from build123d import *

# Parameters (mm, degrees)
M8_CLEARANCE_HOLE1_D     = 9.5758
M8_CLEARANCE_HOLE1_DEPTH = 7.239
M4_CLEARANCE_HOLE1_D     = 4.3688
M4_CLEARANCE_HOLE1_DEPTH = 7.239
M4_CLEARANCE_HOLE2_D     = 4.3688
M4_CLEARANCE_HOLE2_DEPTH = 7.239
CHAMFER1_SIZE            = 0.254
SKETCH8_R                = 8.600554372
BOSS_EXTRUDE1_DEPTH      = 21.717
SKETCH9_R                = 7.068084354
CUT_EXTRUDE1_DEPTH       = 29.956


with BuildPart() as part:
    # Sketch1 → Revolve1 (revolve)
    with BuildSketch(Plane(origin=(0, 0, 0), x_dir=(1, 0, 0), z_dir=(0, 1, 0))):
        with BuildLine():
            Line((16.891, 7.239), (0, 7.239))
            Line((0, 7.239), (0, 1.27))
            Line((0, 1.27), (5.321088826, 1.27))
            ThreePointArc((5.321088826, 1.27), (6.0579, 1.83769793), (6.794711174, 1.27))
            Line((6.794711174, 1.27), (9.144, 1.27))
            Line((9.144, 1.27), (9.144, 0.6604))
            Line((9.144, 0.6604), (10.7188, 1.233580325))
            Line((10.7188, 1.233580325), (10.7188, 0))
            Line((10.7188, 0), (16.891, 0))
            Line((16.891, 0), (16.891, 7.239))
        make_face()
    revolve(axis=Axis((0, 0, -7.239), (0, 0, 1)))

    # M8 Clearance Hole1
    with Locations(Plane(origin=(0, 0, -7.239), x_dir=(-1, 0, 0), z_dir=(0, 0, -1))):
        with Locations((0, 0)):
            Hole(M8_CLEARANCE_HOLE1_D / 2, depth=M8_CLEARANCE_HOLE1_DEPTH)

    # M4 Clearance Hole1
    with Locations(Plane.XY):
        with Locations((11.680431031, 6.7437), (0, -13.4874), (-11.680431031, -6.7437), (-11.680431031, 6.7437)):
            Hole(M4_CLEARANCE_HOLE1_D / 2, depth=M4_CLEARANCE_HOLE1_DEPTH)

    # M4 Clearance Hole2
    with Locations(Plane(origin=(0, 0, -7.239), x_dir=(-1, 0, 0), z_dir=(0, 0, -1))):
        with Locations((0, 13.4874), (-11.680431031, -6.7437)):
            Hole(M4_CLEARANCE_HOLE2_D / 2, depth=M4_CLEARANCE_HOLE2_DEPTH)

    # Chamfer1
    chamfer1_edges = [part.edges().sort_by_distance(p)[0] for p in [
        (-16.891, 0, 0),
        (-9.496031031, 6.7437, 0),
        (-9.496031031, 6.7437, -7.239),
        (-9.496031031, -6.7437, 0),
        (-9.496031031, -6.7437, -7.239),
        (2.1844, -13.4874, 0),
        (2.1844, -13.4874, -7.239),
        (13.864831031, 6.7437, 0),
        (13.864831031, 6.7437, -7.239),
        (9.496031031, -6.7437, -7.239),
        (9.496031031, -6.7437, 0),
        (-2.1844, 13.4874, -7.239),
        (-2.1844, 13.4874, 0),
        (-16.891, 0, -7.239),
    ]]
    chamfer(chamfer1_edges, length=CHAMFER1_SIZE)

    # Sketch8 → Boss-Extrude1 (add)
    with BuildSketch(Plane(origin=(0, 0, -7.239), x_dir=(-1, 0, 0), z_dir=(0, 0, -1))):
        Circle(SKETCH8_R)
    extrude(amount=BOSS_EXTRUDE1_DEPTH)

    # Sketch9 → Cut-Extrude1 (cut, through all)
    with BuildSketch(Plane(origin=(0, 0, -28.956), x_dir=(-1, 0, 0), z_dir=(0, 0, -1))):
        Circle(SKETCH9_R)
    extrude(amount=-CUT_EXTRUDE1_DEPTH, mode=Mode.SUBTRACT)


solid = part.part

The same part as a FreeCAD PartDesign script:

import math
import FreeCAD as App
import Part
import Sketcher
Q = App.Units.Quantity


def edges_at(feature, points):
    """Names of the edges that pass closest to the given points."""
    edges = feature.Shape.Edges
    near = lambda p: min(range(len(edges)), key=lambda i: edges[i].distToShape(Part.Vertex(*p))[0])
    return sorted({f"Edge{near(p) + 1}" for p in points})

doc = App.newDocument("Part")
params = doc.addObject("Spreadsheet::Sheet", "Params")
for row, (alias, value) in enumerate([
    ("sketch1_radius", "0.03 in"),
    ("sketch1_width", "0.665 in"),
    ("sketch1_width2", "0.243 in"),
    ("sketch1_height", "0.235 in"),
    ("sketch1_height2", "0.024 in"),
    ("revolution_angle", "360 deg"),
    ("sketch2_diameter", "0.377 in"),
    ("hole_diameter", "0.377 in"),
    ("hole_depth", "0.285 in"),
    ("sketch3_diameter", "0.172 in"),
    ("hole2_diameter", "0.172 in"),
    ("hole2_depth", "0.285 in"),
    ("sketch4_diameter", "0.172 in"),
    ("hole3_diameter", "0.172 in"),
    ("hole3_depth", "0.285 in"),
    ("chamfer_size", "0.01 in"),
    ("pad1_length", "0.855 in"),
], start=1):
    params.set(f"A{row}", alias)
    params.set(f"B{row}", "=" + value)
    params.setAlias(f"B{row}", alias)

body = doc.addObject("PartDesign::Body", "Body")

sketch1 = body.newObject("Sketcher::SketchObject", "Sketch")
sketch1.AttachmentSupport = (doc.getObject("XZ_Plane"), [""])
sketch1.MapMode = "FlatFace"
sketch1.addGeometry([
    Part.LineSegment(App.Vector(16.9, -7.2, 0), App.Vector(0, -7.2, 0)),
    Part.LineSegment(App.Vector(0, -7.2, 0), App.Vector(0, -1.3, 0)),
    Part.LineSegment(App.Vector(0, -1.3, 0), App.Vector(5.3, -1.3, 0)),
    Part.ArcOfCircle(Part.Circle(App.Vector(6.1, -1.1, 0), App.Vector(0, 0, 1), 0.8), math.radians(-165), math.radians(-15)),
    Part.LineSegment(App.Vector(6.8, -1.3, 0), App.Vector(9.1, -1.3, 0)),
    Part.LineSegment(App.Vector(9.1, -1.3, 0), App.Vector(9.1, -0.7, 0)),
    Part.LineSegment(App.Vector(9.1, -0.7, 0), App.Vector(10.7, -1.2, 0)),
    Part.LineSegment(App.Vector(10.7, -1.2, 0), App.Vector(10.7, 0, 0)),
    Part.LineSegment(App.Vector(10.7, 0, 0), App.Vector(16.9, 0, 0)),
    Part.LineSegment(App.Vector(16.9, 0, 0), App.Vector(16.9, -7.2, 0)),
], False)
sketch1.addConstraint([
    Sketcher.Constraint("Coincident", 0, 2, 1, 1),
    Sketcher.Constraint("Coincident", 1, 2, 2, 1),
    Sketcher.Constraint("Coincident", 2, 2, 3, 1),
    Sketcher.Constraint("Coincident", 3, 2, 4, 1),
    Sketcher.Constraint("Coincident", 4, 2, 5, 1),
    Sketcher.Constraint("Coincident", 5, 2, 6, 1),
    Sketcher.Constraint("Coincident", 6, 2, 7, 1),
    Sketcher.Constraint("Coincident", 7, 2, 8, 1),
    Sketcher.Constraint("Coincident", 8, 2, 9, 1),
    Sketcher.Constraint("Coincident", 9, 2, 0, 1),
    Sketcher.Constraint("Horizontal", 0),
    Sketcher.Constraint("Vertical", 1),
    Sketcher.Constraint("Horizontal", 2),
    Sketcher.Constraint("Horizontal", 4),
    Sketcher.Constraint("Vertical", 5),
    Sketcher.Constraint("Vertical", 7),
    Sketcher.Constraint("Horizontal", 8),
    Sketcher.Constraint("Vertical", 9),
    Sketcher.Constraint("PointOnObject", 0, 2, -2),
    Sketcher.Constraint("PointOnObject", 7, 2, -1),
    Sketcher.Constraint("Horizontal", 2, 2, 3, 2),
    Sketcher.Constraint("Radius", 3, Q("0.03 in")),
    Sketcher.Constraint("Angle", 6, Q("-20 deg")),
    Sketcher.Constraint("DistanceX", 0, 2, 0, 1, Q("0.665 in")),
    Sketcher.Constraint("DistanceX", 8, 1, 8, 2, Q("0.243 in")),
    Sketcher.Constraint("DistanceY", 1, 1, 1, 2, Q("0.235 in")),
    Sketcher.Constraint("DistanceY", 5, 1, 5, 2, Q("0.024 in")),
    Sketcher.Constraint("DistanceY", 9, 2, 9, 1, Q("0.285 in")),
    Sketcher.Constraint("DistanceX", -1, 1, 4, 2, Q("0.36 in")),
    Sketcher.Constraint("DistanceX", -1, 1, 3, 3, Q("0.2385 in")),
    Sketcher.Constraint("DistanceX", 2, 1, 2, 2, 5.321089),
])
sketch1.setExpression("Constraints[21]", "Params.sketch1_radius")
sketch1.setExpression("Constraints[23]", "Params.sketch1_width")
sketch1.setExpression("Constraints[24]", "Params.sketch1_width2")
sketch1.setExpression("Constraints[25]", "Params.sketch1_height")
sketch1.setExpression("Constraints[26]", "Params.sketch1_height2")
revolution = body.newObject("PartDesign::Revolution", "Revolution")
revolution.Profile = sketch1
revolution.ReferenceAxis = (sketch1, ["V_Axis"])
revolution.setExpression("Angle", "Params.revolution_angle")

sketch2 = body.newObject("Sketcher::SketchObject", "Sketch001")
sketch2.AttachmentSupport = (doc.getObject("XY_Plane"), [""])
sketch2.MapMode = "FlatFace"
sketch2.AttachmentOffset = App.Placement(App.Vector(0, 0, -0.285 * 25.4), App.Rotation())
sketch2.addGeometry(Part.Circle(App.Vector(0, 0, 0), App.Vector(0, 0, 1), 4.8), False)
sketch2.addConstraint([
    Sketcher.Constraint("Coincident", 0, 3, -1, 1),
    Sketcher.Constraint("Diameter", 0, Q("0.377 in")),
])
sketch2.setExpression("Constraints[1]", "Params.sketch2_diameter")
doc.recompute()
hole = body.newObject("PartDesign::Hole", "Hole")
hole.Profile = sketch2
hole.ThreadType = "None"
hole.setExpression("Diameter", "Params.hole_diameter")
hole.DepthType = "Dimension"
hole.setExpression("Depth", "Params.hole_depth")
hole.DrillPoint = "Flat"
hole.Reversed = True

sketch3 = body.newObject("Sketcher::SketchObject", "Sketch002")
sketch3.AttachmentSupport = (doc.getObject("XY_Plane"), [""])
sketch3.MapMode = "FlatFace"
sketch3.addGeometry([
    Part.Circle(App.Vector(11.7, 6.7, 0), App.Vector(0, 0, 1), 2.2),
    Part.Circle(App.Vector(0, -13.5, 0), App.Vector(0, 0, 1), 2.2),
    Part.Circle(App.Vector(-11.7, -6.7, 0), App.Vector(0, 0, 1), 2.2),
    Part.Circle(App.Vector(-11.7, 6.7, 0), App.Vector(0, 0, 1), 2.2),
], False)
sketch3.addConstraint([
    Sketcher.Constraint("Equal", 0, 1),
    Sketcher.Constraint("Equal", 1, 2),
    Sketcher.Constraint("Equal", 2, 3),
    Sketcher.Constraint("Symmetric", 0, 3, 2, 3, -1, 1),
    Sketcher.Constraint("Symmetric", 0, 3, 3, 3, -2),
    Sketcher.Constraint("PointOnObject", 1, 3, -2),
    Sketcher.Constraint("Diameter", 0, Q("0.172 in")),
    Sketcher.Constraint("DistanceY", 1, 3, -1, 1, Q("0.531 in")),
    Sketcher.Constraint("DistanceY", 2, 3, 0, 3, Q("0.531 in")),
    Sketcher.Constraint("DistanceX", -1, 1, 0, 3, 11.680431),
])
sketch3.setExpression("Constraints[6]", "Params.sketch3_diameter")
doc.recompute()
hole2 = body.newObject("PartDesign::Hole", "Hole001")
hole2.Profile = sketch3
hole2.ThreadType = "None"
hole2.setExpression("Diameter", "Params.hole2_diameter")
hole2.DepthType = "Dimension"
hole2.setExpression("Depth", "Params.hole2_depth")
hole2.DrillPoint = "Flat"

sketch4 = body.newObject("Sketcher::SketchObject", "Sketch003")
sketch4.AttachmentSupport = (doc.getObject("XY_Plane"), [""])
sketch4.MapMode = "FlatFace"
sketch4.AttachmentOffset = App.Placement(App.Vector(0, 0, -0.285 * 25.4), App.Rotation())
sketch4.addGeometry([
    Part.Circle(App.Vector(0, 13.5, 0), App.Vector(0, 0, 1), 2.2),
    Part.Circle(App.Vector(11.7, -6.7, 0), App.Vector(0, 0, 1), 2.2),
], False)
sketch4.addConstraint([
    Sketcher.Constraint("Equal", 0, 1),
    Sketcher.Constraint("PointOnObject", 0, 3, -2),
    Sketcher.Constraint("Diameter", 0, Q("0.172 in")),
    Sketcher.Constraint("DistanceY", -1, 1, 0, 3, Q("0.531 in")),
    Sketcher.Constraint("DistanceY", 1, 3, -1, 1, Q("0.2655 in")),
    Sketcher.Constraint("DistanceX", -1, 1, 1, 3, 11.680431),
])
sketch4.setExpression("Constraints[2]", "Params.sketch4_diameter")
doc.recompute()
hole3 = body.newObject("PartDesign::Hole", "Hole002")
hole3.Profile = sketch4
hole3.ThreadType = "None"
hole3.setExpression("Diameter", "Params.hole3_diameter")
hole3.DepthType = "Dimension"
hole3.setExpression("Depth", "Params.hole3_depth")
hole3.DrillPoint = "Flat"
hole3.Reversed = True
doc.recompute()

chamfer = body.newObject("PartDesign::Chamfer", "Chamfer")
chamfer.Base = (hole3, edges_at(hole3, [
    (-16.891, 0, 0),
    (-9.496, 6.744, 0),
    (-9.496, 6.744, -7.239),
    (-9.496, -6.744, 0),
    (-9.496, -6.744, -7.239),
    (2.184, -13.487, 0),
    (2.184, -13.487, -7.239),
    (13.865, 6.744, 0),
    (13.865, 6.744, -7.239),
    (9.496, -6.744, -7.239),
    (9.496, -6.744, 0),
    (-2.184, 13.487, -7.239),
    (-2.184, 13.487, 0),
    (-16.891, 0, -7.239),
]))
chamfer.setExpression("Size", "Params.chamfer_size")

sketch5 = body.newObject("Sketcher::SketchObject", "Sketch004")
sketch5.AttachmentSupport = (doc.getObject("XY_Plane"), [""])
sketch5.MapMode = "FlatFace"
sketch5.AttachmentOffset = App.Placement(App.Vector(0, 0, -0.285 * 25.4), App.Rotation())
sketch5.addGeometry(Part.Circle(App.Vector(0, 0, 0), App.Vector(0, 0, 1), 9), False)
sketch5.addConstraint([
    Sketcher.Constraint("Coincident", 0, 3, -1, 1),
    Sketcher.Constraint("Diameter", 0, 17.201109),
])
pad1 = body.newObject("PartDesign::Pad", "Pad")
pad1.Profile = sketch5
pad1.setExpression("Length", "Params.pad1_length")
pad1.Reversed = True

sketch6 = body.newObject("Sketcher::SketchObject", "Sketch005")
sketch6.AttachmentSupport = (doc.getObject("XY_Plane"), [""])
sketch6.MapMode = "FlatFace"
sketch6.AttachmentOffset = App.Placement(App.Vector(0, 0, -1.14 * 25.4), App.Rotation())
sketch6.addGeometry(Part.Circle(App.Vector(0, 0, 0), App.Vector(0, 0, 1), 7), False)
sketch6.addConstraint([
    Sketcher.Constraint("Coincident", 0, 3, -1, 1),
    Sketcher.Constraint("Diameter", 0, 14.136169),
])
pocket1 = body.newObject("PartDesign::Pocket", "Pocket")
pocket1.Profile = sketch6
pocket1.Type = "ThroughAll"
pocket1.Reversed = True

doc.recompute()
